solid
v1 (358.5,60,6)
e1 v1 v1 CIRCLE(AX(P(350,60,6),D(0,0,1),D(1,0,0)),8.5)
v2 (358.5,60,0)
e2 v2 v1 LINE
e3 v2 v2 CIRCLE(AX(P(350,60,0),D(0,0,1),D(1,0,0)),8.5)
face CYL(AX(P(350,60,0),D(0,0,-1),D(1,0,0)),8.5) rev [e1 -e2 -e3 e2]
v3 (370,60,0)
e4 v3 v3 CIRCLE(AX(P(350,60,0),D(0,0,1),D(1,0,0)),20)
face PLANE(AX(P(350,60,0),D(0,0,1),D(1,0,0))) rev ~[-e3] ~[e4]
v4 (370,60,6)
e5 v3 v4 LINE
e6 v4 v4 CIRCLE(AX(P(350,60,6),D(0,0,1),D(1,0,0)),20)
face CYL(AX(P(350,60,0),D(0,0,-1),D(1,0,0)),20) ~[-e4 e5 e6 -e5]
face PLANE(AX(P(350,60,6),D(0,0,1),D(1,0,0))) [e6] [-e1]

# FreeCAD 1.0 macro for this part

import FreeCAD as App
import Part
import Sketcher
from FreeCAD import Vector
Q = App.Units.Quantity

doc = App.newDocument("Part")
body = doc.addObject("PartDesign::Body", "Body")

sketch1 = doc.addObject("Sketcher::SketchObject", "Sketch")
body.addObject(sketch1)
sketch1.AttachmentSupport = (doc.XY_Plane, [""])
sketch1.MapMode = "FlatFace"
sketch1.addGeometry([
    Part.Circle(Vector(350, 60, 0), Vector(0, 0, 1), 20),
    Part.Circle(Vector(350, 60, 0), Vector(0, 0, 1), 8.5),
], False)
sketch1.addConstraint([
    Sketcher.Constraint("Coincident", 1, 3, 0, 3),
    Sketcher.Constraint("Diameter", 0, Q("40 mm")),
    Sketcher.Constraint("Diameter", 1, Q("17 mm")),
    Sketcher.Constraint("DistanceX", -1, 1, 0, 3, Q("350 mm")),
    Sketcher.Constraint("DistanceY", -1, 1, 0, 3, Q("60 mm")),
])
pad1 = doc.addObject("PartDesign::Pad", "Pad")
body.addObject(pad1)
pad1.Profile = sketch1
pad1.Length = 6

doc.recompute()
